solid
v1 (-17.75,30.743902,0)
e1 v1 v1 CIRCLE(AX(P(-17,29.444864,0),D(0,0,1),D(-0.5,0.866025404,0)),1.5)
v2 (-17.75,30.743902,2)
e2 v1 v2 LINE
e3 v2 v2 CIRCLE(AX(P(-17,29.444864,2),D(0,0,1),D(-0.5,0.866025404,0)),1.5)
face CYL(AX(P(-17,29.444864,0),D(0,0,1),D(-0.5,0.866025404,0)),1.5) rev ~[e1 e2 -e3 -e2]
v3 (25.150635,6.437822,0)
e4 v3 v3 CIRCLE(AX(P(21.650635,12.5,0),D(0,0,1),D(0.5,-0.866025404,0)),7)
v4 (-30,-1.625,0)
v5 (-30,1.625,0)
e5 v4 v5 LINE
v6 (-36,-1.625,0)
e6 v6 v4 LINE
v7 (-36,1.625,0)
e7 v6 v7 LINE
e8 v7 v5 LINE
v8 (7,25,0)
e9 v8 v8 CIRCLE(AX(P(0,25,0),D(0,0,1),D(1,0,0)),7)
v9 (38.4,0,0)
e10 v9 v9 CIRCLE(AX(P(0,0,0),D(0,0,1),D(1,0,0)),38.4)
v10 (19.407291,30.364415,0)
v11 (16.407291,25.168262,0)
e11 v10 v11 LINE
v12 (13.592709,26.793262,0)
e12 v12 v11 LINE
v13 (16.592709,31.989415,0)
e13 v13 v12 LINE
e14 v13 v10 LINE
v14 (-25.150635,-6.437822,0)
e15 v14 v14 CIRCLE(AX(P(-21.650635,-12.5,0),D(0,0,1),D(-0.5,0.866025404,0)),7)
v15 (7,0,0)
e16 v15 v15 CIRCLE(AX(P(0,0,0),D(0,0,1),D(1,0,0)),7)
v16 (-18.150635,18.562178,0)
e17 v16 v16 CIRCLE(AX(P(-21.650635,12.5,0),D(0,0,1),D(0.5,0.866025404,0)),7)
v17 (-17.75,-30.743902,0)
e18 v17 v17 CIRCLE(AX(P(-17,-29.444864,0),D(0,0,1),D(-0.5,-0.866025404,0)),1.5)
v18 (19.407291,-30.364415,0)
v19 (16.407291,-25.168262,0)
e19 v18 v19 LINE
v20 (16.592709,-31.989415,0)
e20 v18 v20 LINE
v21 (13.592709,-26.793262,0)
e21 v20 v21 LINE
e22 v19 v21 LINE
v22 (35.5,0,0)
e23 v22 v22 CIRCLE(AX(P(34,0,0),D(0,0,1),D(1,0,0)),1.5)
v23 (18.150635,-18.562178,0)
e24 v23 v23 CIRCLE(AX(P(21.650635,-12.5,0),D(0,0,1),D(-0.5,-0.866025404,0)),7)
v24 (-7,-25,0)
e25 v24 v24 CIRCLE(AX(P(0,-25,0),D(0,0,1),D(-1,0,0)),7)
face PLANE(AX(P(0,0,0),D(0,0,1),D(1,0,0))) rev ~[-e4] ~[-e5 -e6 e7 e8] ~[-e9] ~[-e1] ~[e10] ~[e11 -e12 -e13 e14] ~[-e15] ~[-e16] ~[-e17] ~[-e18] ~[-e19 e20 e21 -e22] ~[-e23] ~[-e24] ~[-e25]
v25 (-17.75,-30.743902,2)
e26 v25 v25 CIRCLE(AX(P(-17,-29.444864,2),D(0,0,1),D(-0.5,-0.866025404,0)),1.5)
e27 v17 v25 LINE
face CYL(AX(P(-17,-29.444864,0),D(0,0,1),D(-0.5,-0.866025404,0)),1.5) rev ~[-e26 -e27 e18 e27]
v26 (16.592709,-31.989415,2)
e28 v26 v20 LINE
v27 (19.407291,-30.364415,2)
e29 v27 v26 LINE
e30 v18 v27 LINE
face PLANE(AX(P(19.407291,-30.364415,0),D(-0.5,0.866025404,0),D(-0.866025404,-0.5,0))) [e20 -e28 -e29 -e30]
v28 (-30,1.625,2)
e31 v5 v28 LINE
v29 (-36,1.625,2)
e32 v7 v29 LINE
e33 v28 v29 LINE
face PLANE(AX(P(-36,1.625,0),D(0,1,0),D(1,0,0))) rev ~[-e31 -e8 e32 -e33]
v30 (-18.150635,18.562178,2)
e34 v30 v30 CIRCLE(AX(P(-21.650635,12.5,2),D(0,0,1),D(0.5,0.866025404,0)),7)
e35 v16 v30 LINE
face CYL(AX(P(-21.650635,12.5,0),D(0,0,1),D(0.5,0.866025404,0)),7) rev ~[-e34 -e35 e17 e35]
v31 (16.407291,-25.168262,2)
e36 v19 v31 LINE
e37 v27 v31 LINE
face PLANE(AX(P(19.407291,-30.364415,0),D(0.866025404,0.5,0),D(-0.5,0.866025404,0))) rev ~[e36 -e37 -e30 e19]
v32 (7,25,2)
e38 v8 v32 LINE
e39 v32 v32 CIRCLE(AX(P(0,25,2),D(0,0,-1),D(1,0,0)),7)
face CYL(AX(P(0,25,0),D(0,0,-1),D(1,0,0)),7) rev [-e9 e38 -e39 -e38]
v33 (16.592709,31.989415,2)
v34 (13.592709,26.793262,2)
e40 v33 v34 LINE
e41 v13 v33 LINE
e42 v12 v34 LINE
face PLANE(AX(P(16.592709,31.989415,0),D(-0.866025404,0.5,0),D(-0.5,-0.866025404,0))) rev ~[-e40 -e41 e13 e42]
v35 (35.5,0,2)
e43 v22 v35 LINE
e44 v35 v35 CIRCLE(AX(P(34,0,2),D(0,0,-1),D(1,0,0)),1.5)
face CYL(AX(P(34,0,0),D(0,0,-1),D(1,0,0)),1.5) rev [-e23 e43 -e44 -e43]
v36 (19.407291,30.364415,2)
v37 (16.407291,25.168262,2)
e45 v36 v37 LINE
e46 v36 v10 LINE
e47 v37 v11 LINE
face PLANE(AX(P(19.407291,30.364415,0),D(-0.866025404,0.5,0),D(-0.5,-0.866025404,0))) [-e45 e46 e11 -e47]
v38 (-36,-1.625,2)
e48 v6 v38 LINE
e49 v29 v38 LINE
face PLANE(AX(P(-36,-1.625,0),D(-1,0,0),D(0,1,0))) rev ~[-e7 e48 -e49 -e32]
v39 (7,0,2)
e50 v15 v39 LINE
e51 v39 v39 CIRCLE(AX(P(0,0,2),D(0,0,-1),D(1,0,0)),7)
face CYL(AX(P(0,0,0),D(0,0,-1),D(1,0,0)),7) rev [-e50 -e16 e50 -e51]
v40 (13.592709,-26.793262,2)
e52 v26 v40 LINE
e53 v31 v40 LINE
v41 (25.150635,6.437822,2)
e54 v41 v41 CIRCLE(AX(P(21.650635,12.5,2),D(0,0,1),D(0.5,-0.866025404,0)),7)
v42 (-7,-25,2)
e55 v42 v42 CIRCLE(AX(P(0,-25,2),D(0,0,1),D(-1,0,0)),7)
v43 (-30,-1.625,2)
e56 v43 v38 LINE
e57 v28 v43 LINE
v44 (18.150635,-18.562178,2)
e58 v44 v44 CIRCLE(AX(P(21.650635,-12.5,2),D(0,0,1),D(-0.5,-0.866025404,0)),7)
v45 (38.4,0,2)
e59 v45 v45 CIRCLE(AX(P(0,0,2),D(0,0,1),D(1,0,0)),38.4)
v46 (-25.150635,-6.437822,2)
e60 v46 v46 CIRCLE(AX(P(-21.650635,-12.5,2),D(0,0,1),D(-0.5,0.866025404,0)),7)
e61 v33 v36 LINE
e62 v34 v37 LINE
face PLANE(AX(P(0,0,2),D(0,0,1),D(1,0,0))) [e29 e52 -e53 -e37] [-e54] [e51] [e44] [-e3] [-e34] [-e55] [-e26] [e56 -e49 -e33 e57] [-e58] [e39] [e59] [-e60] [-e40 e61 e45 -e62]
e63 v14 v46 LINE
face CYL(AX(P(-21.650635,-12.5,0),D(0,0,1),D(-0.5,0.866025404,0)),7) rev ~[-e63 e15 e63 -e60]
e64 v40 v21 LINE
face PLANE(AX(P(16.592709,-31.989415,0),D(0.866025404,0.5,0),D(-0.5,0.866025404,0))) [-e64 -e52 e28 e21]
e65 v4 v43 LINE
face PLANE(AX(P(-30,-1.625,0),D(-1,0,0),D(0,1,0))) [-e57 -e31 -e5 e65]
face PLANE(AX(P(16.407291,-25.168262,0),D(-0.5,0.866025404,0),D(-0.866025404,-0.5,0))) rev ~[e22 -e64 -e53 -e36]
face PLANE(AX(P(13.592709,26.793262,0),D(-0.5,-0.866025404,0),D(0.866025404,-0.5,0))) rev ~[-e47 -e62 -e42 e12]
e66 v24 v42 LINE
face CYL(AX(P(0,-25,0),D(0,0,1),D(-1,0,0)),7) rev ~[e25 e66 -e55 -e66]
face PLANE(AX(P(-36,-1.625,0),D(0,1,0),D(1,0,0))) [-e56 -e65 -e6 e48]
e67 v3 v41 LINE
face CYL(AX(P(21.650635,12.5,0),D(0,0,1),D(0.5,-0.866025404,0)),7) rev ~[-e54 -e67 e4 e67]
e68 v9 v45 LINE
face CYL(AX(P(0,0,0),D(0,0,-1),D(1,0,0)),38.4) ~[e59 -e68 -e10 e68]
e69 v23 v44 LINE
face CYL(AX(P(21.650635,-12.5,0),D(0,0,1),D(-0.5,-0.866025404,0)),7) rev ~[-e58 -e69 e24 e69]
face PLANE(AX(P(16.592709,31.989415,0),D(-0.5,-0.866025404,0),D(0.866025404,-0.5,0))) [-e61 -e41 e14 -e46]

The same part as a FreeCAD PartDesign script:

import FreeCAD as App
import Part
import Sketcher
Q = App.Units.Quantity


def add_polygon(sketch, points):
    """Adds a closed chain of lines whose ends are joined by coincident constraints."""
    first, n = sketch.GeometryCount, len(points)
    for a, b in zip(points, points[1:] + points[:1]):
        sketch.addGeometry(Part.LineSegment(App.Vector(*a, 0), App.Vector(*b, 0)), False)
    for i in range(n):
        sketch.addConstraint(Sketcher.Constraint("Coincident", first + i, 2, first + (i + 1) % n, 1))

doc = App.newDocument("Part")
body = doc.addObject("PartDesign::Body", "Body")

sketch1 = body.newObject("Sketcher::SketchObject", "Sketch")
sketch1.AttachmentSupport = (doc.getObject("XY_Plane"), [""])
sketch1.MapMode = "FlatFace"
sketch1.addGeometry(Part.Circle(App.Vector(0, 0, 0), App.Vector(0, 0, 1), 38), False)
sketch1.addConstraint([
    Sketcher.Constraint("Coincident", 0, 3, -1, 1),
    Sketcher.Constraint("Diameter", 0, Q("76.8 mm")),
])
pad1 = body.newObject("PartDesign::Pad", "Pad")
pad1.Profile = sketch1
pad1.Length = 2

sketch2 = body.newObject("Sketcher::SketchObject", "Sketch001")
sketch2.AttachmentSupport = (doc.getObject("XY_Plane"), [""])
sketch2.MapMode = "FlatFace"
sketch2.addGeometry(Part.Circle(App.Vector(34, 0, 0), App.Vector(0, 0, 1), 1.5), False)
sketch2.addConstraint([
    Sketcher.Constraint("PointOnObject", 0, 3, -1),
    Sketcher.Constraint("Diameter", 0, Q("3 mm")),
    Sketcher.Constraint("DistanceX", -1, 1, 0, 3, Q("34 mm")),
])
pocket1 = body.newObject("PartDesign::Pocket", "Pocket")
pocket1.Profile = sketch2
pocket1.Type = "ThroughAll"
pocket1.Midplane = True
doc.recompute()

polarpattern = body.newObject("PartDesign::PolarPattern", "PolarPattern")
polarpattern.Originals = [pocket1]
polarpattern.Axis = (doc.getObject("Z_Axis"), [""])
polarpattern.Angle = 360
polarpattern.Occurrences = 3
body.Tip = polarpattern

sketch3 = body.newObject("Sketcher::SketchObject", "Sketch002")
sketch3.AttachmentSupport = (doc.getObject("XY_Plane"), [""])
sketch3.MapMode = "FlatFace"
sketch3.addGeometry(Part.Circle(App.Vector(0, 0, 0), App.Vector(0, 0, 1), 7), False)
sketch3.addConstraint([
    Sketcher.Constraint("Coincident", 0, 3, -1, 1),
    Sketcher.Constraint("Diameter", 0, Q("14 mm")),
])
pocket2 = body.newObject("PartDesign::Pocket", "Pocket001")
pocket2.Profile = sketch3
pocket2.Type = "ThroughAll"
pocket2.Midplane = True

sketch4 = body.newObject("Sketcher::SketchObject", "Sketch003")
sketch4.AttachmentSupport = (doc.getObject("XY_Plane"), [""])
sketch4.MapMode = "FlatFace"
sketch4.addGeometry(Part.Circle(App.Vector(0, 25, 0), App.Vector(0, 0, 1), 7), False)
sketch4.addConstraint([
    Sketcher.Constraint("PointOnObject", 0, 3, -2),
    Sketcher.Constraint("Diameter", 0, Q("14 mm")),
    Sketcher.Constraint("DistanceY", -1, 1, 0, 3, Q("25 mm")),
])
pocket3 = body.newObject("PartDesign::Pocket", "Pocket002")
pocket3.Profile = sketch4
pocket3.Type = "ThroughAll"
pocket3.Midplane = True
doc.recompute()

polarpattern2 = body.newObject("PartDesign::PolarPattern", "PolarPattern001")
polarpattern2.Originals = [pocket3]
polarpattern2.Axis = (doc.getObject("Z_Axis"), [""])
polarpattern2.Angle = 360
polarpattern2.Occurrences = 6
body.Tip = polarpattern2

sketch5 = body.newObject("Sketcher::SketchObject", "Sketch004")
sketch5.AttachmentSupport = (doc.getObject("XY_Plane"), [""])
sketch5.MapMode = "FlatFace"
add_polygon(sketch5, [(-36, 1.6), (-36, -1.6), (-30, -1.6), (-30, 1.6)])
sketch5.addConstraint([
    Sketcher.Constraint("Vertical", 0),
    Sketcher.Constraint("Horizontal", 1),
    Sketcher.Constraint("Vertical", 2),
    Sketcher.Constraint("Horizontal", 3),
    Sketcher.Constraint("DistanceX", 1, 1, 1, 2, Q("6 mm")),
    Sketcher.Constraint("DistanceX", 0, 2, -1, 1, Q("36 mm")),
    Sketcher.Constraint("DistanceY", 0, 2, 0, 1, Q("3.25 mm")),
    Sketcher.Constraint("DistanceY", 0, 2, -1, 1, Q("1.625 mm")),
])
pocket4 = body.newObject("PartDesign::Pocket", "Pocket003")
pocket4.Profile = sketch5
pocket4.Type = "ThroughAll"
pocket4.Midplane = True
doc.recompute()

polarpattern3 = body.newObject("PartDesign::PolarPattern", "PolarPattern002")
polarpattern3.Originals = [pocket4]
polarpattern3.Axis = (doc.getObject("Z_Axis"), [""])
polarpattern3.Angle = 360
polarpattern3.Occurrences = 3
body.Tip = polarpattern3

doc.recompute()
